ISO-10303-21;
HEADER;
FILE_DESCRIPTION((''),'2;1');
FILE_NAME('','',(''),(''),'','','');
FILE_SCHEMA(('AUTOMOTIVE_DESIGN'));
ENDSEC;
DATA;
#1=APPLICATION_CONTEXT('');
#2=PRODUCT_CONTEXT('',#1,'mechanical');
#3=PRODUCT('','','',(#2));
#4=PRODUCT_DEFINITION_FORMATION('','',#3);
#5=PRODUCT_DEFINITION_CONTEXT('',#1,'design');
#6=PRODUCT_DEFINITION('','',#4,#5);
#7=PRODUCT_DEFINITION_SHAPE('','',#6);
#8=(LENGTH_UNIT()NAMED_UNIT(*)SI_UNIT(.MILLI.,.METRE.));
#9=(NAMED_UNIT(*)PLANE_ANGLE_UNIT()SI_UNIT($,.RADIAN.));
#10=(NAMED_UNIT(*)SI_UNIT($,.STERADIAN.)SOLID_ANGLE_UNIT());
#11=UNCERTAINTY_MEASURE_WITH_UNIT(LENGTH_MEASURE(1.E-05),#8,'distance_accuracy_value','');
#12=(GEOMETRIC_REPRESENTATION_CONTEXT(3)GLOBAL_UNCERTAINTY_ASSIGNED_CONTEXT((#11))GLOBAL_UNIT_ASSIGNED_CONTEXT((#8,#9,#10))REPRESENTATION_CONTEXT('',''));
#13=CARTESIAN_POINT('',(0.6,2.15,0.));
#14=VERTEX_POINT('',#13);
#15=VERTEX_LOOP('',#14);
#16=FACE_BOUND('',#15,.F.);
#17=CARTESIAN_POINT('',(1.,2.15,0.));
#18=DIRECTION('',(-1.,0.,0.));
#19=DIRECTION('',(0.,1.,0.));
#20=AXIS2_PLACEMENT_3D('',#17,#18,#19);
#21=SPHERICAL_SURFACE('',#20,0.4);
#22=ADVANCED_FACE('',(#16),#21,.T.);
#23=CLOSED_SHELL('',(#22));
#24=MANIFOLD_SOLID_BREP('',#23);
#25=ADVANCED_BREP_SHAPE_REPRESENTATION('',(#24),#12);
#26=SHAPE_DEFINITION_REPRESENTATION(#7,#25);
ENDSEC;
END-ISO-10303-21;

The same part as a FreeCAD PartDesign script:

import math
import FreeCAD as App
import Part
import Sketcher

V = App.Vector
Q = App.Units.Quantity

doc = App.newDocument("Part")
params = doc.addObject("Spreadsheet::Sheet", "Params")
for row, (alias, value) in enumerate([
    ("sketch1_radius", "0.4 mm"),
    ("revolution_angle", "360 deg"),
], start=1):
    params.set(f"A{row}", alias)
    params.set(f"B{row}", "=" + value)
    params.setAlias(f"B{row}", alias)

body = doc.addObject("PartDesign::Body", "Body")

sketch1 = doc.addObject("Sketcher::SketchObject", "Sketch")
body.addObject(sketch1)
sketch1.AttachmentSupport = (doc.XY_Plane, [""])
sketch1.MapMode = "FlatFace"
sketch1.addGeometry([
    Part.LineSegment(V(0.6, 2.15, 0), V(1.4, 2.15, 0)),
    Part.ArcOfCircle(Part.Circle(V(1, 2.15, 0), V(0, 0, 1), 0.4), math.radians(0), math.radians(180)),
], False)
sketch1.addGeometry(Part.LineSegment(V(0.6, 2.15, 0), V(1.4, 2.15, 0)), True)
sketch1.addConstraint([
    Sketcher.Constraint("Coincident", 0, 1, 1, 2),
    Sketcher.Constraint("Coincident", 1, 1, 0, 2),
    Sketcher.Constraint("Horizontal", 0),
    Sketcher.Constraint("Horizontal", 2),
    Sketcher.Constraint("Coincident", 2, 1, 0, 1),
    Sketcher.Constraint("Horizontal", 1, 3, 0, 1),
    Sketcher.Constraint("Equal", 0, 2),
    Sketcher.Constraint("Radius", 1, Q("0.4 mm")),
    Sketcher.Constraint("DistanceX", -1, 1, 1, 3, Q("1 mm")),
    Sketcher.Constraint("DistanceY", -1, 1, 1, 3, Q("2.15 mm")),
])
sketch1.setExpression("Constraints[7]", "Params.sketch1_radius")
revolution = doc.addObject("PartDesign::Revolution", "Revolution")
body.addObject(revolution)
revolution.Profile = sketch1
revolution.ReferenceAxis = (sketch1, ["Axis0"])
revolution.setExpression("Angle", "Params.revolution_angle")

doc.recompute()
